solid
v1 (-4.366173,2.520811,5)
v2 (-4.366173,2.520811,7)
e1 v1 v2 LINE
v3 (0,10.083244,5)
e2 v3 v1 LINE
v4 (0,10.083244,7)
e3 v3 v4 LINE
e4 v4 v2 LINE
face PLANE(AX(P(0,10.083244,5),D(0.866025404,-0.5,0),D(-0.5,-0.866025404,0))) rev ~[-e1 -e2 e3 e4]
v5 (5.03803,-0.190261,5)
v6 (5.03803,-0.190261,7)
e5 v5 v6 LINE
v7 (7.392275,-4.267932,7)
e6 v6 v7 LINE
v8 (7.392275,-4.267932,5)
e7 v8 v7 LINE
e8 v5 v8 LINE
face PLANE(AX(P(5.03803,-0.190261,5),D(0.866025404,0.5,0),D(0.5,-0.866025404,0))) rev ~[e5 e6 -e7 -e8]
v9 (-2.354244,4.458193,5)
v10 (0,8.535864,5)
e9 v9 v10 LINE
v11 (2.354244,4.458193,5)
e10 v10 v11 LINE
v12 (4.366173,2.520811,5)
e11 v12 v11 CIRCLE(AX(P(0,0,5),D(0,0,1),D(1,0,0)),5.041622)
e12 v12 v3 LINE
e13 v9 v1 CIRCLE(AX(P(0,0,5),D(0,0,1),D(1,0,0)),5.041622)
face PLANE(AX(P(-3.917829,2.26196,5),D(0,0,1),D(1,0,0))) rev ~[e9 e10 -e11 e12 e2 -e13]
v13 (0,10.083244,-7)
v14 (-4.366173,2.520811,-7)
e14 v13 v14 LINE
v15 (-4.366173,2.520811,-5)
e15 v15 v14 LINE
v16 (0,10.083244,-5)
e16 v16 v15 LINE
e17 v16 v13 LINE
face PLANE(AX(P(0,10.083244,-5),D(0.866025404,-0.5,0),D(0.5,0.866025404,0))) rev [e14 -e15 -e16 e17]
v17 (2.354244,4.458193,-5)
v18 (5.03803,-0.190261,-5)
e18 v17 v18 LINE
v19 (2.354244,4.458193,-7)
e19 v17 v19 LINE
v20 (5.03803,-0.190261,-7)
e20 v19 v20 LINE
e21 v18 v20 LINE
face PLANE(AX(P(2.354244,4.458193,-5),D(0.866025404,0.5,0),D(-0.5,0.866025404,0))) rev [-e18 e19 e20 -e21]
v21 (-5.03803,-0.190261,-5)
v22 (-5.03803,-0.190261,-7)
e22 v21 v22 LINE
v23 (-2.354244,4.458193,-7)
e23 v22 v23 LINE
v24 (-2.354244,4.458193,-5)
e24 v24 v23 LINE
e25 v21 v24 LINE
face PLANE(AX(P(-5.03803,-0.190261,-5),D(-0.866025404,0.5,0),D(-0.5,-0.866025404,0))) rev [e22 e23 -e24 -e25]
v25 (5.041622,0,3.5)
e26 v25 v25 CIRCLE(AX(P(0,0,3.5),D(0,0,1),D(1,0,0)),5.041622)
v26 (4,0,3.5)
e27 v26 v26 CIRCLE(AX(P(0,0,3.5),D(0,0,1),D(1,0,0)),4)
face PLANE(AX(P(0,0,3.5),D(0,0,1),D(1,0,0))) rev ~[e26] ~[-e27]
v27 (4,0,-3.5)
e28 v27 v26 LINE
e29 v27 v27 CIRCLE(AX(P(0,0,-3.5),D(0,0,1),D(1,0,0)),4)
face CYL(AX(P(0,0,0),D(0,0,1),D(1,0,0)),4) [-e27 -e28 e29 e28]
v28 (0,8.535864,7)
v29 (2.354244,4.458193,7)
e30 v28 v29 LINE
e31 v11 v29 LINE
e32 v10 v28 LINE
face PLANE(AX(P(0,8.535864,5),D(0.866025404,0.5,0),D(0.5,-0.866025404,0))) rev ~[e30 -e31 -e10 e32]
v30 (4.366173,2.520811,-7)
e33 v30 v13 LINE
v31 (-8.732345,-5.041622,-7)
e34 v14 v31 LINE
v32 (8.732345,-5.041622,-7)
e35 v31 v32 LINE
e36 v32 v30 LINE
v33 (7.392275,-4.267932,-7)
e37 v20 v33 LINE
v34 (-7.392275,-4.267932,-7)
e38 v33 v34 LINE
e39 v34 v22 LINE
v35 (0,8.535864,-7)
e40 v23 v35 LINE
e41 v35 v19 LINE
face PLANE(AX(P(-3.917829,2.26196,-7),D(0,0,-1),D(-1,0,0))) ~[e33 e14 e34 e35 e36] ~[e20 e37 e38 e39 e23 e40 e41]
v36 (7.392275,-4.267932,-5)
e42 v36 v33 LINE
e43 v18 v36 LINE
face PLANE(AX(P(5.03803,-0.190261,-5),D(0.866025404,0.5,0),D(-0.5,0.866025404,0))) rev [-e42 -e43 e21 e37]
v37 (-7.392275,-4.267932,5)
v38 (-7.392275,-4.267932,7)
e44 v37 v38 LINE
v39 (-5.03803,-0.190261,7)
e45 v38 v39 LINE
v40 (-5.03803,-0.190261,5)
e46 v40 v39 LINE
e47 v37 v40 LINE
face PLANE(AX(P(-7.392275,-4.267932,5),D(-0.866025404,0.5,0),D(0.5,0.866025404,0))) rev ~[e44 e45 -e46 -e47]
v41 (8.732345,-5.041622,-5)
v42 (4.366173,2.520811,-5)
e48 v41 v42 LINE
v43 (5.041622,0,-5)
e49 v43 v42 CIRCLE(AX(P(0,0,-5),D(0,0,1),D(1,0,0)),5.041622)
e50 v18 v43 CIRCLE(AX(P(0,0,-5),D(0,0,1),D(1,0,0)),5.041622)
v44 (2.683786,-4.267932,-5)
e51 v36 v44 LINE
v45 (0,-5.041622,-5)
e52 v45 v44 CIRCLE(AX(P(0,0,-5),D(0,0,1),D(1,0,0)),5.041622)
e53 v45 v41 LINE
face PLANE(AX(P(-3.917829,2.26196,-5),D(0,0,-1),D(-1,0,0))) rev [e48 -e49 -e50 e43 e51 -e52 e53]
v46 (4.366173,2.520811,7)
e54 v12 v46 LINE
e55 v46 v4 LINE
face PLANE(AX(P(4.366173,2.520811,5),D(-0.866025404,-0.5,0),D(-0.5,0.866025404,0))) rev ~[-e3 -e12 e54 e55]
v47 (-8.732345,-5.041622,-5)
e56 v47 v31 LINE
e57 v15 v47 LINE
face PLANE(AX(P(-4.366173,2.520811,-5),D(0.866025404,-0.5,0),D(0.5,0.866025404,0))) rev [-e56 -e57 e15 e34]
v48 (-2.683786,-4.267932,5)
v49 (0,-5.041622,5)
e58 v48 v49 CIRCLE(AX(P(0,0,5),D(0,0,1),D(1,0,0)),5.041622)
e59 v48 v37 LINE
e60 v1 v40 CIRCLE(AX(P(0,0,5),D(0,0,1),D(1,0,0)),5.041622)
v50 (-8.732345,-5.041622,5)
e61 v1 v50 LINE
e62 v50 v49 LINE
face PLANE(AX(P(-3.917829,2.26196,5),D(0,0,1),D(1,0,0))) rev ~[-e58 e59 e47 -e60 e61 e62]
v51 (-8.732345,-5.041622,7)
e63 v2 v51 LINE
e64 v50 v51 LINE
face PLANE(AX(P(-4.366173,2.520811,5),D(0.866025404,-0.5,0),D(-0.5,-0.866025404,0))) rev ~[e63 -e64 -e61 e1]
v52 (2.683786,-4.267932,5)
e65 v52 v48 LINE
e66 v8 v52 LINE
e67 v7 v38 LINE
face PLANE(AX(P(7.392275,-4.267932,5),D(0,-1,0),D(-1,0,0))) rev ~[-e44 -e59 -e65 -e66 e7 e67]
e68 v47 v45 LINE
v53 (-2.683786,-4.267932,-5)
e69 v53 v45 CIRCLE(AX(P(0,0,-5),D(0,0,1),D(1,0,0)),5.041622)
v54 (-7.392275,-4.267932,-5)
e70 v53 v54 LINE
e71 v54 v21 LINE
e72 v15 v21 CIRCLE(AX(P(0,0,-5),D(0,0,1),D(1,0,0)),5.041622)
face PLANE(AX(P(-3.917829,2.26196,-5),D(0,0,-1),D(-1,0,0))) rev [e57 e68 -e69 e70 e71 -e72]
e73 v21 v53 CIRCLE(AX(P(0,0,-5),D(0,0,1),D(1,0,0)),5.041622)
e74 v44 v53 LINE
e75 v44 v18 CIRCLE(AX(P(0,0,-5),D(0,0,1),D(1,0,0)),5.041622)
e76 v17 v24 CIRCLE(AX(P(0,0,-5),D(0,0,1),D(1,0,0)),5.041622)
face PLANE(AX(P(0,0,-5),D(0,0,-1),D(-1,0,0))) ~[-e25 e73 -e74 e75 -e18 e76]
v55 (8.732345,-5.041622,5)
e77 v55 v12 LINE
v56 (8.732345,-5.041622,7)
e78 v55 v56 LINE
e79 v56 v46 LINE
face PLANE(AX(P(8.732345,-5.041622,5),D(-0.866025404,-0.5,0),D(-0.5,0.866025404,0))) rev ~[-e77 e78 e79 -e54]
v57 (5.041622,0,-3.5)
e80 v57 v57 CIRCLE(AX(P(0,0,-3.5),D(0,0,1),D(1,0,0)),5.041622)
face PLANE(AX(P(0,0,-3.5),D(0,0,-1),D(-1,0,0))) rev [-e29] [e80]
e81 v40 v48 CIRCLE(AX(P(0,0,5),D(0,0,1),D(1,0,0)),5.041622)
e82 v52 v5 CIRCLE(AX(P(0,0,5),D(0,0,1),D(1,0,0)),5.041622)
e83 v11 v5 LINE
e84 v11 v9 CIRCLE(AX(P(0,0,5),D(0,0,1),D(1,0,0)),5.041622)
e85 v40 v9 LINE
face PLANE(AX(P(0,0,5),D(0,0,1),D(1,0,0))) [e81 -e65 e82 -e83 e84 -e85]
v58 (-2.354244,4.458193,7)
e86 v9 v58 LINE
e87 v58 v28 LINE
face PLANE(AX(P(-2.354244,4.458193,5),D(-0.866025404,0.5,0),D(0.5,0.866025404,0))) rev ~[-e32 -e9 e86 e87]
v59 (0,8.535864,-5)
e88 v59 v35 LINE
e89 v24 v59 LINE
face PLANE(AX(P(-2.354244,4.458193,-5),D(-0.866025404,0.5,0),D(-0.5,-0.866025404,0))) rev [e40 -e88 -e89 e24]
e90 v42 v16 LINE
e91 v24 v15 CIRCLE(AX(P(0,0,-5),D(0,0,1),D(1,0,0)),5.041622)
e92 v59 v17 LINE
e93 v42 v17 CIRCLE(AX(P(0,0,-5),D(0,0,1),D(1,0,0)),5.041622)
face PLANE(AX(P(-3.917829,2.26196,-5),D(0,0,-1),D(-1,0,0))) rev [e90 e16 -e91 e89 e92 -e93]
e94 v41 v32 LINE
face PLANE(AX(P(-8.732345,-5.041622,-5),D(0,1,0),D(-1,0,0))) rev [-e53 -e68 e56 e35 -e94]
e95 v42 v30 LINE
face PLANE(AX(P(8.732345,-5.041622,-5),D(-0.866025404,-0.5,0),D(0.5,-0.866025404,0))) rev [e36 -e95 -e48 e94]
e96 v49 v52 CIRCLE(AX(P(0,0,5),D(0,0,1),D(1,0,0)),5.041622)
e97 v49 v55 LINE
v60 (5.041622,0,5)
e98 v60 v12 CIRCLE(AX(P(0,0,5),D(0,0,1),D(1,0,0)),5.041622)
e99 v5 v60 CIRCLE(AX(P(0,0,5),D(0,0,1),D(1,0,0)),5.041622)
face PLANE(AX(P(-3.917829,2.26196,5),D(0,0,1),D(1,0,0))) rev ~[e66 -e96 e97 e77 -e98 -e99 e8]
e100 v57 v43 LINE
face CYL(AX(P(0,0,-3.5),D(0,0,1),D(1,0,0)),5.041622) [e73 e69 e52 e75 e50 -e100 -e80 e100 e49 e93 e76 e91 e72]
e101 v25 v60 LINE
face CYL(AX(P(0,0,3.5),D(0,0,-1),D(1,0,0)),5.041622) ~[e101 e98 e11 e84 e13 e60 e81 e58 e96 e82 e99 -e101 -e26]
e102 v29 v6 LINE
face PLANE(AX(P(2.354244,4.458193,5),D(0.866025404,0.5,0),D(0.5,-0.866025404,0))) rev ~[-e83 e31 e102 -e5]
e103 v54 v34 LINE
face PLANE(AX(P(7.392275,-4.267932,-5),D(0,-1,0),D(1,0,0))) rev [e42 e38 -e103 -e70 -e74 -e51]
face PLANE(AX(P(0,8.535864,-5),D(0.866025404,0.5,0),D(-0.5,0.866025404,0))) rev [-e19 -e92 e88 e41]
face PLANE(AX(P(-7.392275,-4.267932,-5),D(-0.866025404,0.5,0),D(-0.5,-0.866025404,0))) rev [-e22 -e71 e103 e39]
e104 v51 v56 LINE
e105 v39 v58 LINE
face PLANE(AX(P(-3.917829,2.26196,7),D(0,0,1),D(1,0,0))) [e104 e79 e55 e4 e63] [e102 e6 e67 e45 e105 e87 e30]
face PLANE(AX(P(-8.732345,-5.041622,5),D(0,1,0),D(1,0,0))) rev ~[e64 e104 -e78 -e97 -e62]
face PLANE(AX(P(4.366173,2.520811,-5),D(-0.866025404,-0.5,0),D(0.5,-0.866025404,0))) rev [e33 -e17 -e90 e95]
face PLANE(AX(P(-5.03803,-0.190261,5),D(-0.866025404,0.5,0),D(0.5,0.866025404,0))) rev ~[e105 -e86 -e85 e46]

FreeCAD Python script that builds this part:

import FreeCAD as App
import Part
import Sketcher

V = App.Vector
Q = App.Units.Quantity

doc = App.newDocument("Part")
body = doc.addObject("PartDesign::Body", "Body")

sketch1 = body.newObject("Sketcher::SketchObject", "Sketch")
sketch1.AttachmentSupport = (doc.getObject("XY_Plane"), [""])
sketch1.MapMode = "FlatFace"
sketch1.addGeometry(Part.Circle(V(0, 0, 0), V(0, 0, 1), 4), False)
sketch1.addConstraint([
    Sketcher.Constraint("Coincident", 0, 3, -1, 1),
    Sketcher.Constraint("Diameter", 0, Q("8 mm")),
])
pad1 = body.newObject("PartDesign::Pad", "Pad")
pad1.Profile = sketch1
pad1.Length = 3.5

sketch2 = body.newObject("Sketcher::SketchObject", "Sketch001")
sketch2.AttachmentSupport = (doc.getObject("XY_Plane"), [""])
sketch2.MapMode = "FlatFace"
sketch2.AttachmentOffset = App.Placement(V(0, 0, 3.5), App.Rotation())
sketch2.addGeometry(Part.Circle(V(0, 0, 0), V(0, 0, 1), 5), False)
sketch2.addConstraint([
    Sketcher.Constraint("Coincident", 0, 3, -1, 1),
    Sketcher.Constraint("Diameter", 0, Q("10.083244 mm")),
])
pad2 = body.newObject("PartDesign::Pad", "Pad001")
pad2.Profile = sketch2
pad2.Length = 1.5

sketch3 = body.newObject("Sketcher::SketchObject", "Sketch002")
sketch3.AttachmentSupport = (doc.getObject("XY_Plane"), [""])
sketch3.MapMode = "FlatFace"
sketch3.AttachmentOffset = App.Placement(V(0, 0, 5), App.Rotation())
sketch3.addGeometry([
    Part.LineSegment(V(4.4, 2.5, 0), V(0, 10.1, 0)),
    Part.LineSegment(V(0, 10.1, 0), V(-4.4, 2.5, 0)),
    Part.LineSegment(V(-4.4, 2.5, 0), V(-8.7, -5, 0)),
    Part.LineSegment(V(-8.7, -5, 0), V(8.7, -5, 0)),
    Part.LineSegment(V(8.7, -5, 0), V(4.4, 2.5, 0)),
    Part.LineSegment(V(-5, -0.2, 0), V(-2.4, 4.5, 0)),
    Part.LineSegment(V(-2.4, 4.5, 0), V(0, 8.5, 0)),
    Part.LineSegment(V(0, 8.5, 0), V(2.4, 4.5, 0)),
    Part.LineSegment(V(2.4, 4.5, 0), V(5, -0.2, 0)),
    Part.LineSegment(V(5, -0.2, 0), V(7.4, -4.3, 0)),
    Part.LineSegment(V(7.4, -4.3, 0), V(-7.4, -4.3, 0)),
    Part.LineSegment(V(-7.4, -4.3, 0), V(-5, -0.2, 0)),
], False)
sketch3.addConstraint([
    Sketcher.Constraint("Coincident", 0, 2, 1, 1),
    Sketcher.Constraint("Coincident", 1, 2, 2, 1),
    Sketcher.Constraint("Coincident", 2, 2, 3, 1),
    Sketcher.Constraint("Coincident", 3, 2, 4, 1),
    Sketcher.Constraint("Coincident", 4, 2, 0, 1),
    Sketcher.Constraint("Coincident", 5, 2, 6, 1),
    Sketcher.Constraint("Coincident", 6, 2, 7, 1),
    Sketcher.Constraint("Coincident", 7, 2, 8, 1),
    Sketcher.Constraint("Coincident", 8, 2, 9, 1),
    Sketcher.Constraint("Coincident", 9, 2, 10, 1),
    Sketcher.Constraint("Coincident", 10, 2, 11, 1),
    Sketcher.Constraint("Coincident", 11, 2, 5, 1),
    Sketcher.Constraint("Horizontal", 3),
    Sketcher.Constraint("Horizontal", 10),
    Sketcher.Constraint("Symmetric", 1, 2, 4, 2, -2),
    Sketcher.Constraint("Symmetric", 5, 2, 7, 2, -2),
    Sketcher.Constraint("Symmetric", 8, 2, 11, 2, -2),
    Sketcher.Constraint("PointOnObject", 0, 2, -2),
    Sketcher.Constraint("PointOnObject", 6, 2, -2),
    Sketcher.Constraint("Parallel", 1, 2),
    Sketcher.Constraint("Parallel", 0, 4),
    Sketcher.Constraint("Parallel", 2, 5),
    Sketcher.Constraint("Parallel", 5, 6),
    Sketcher.Constraint("Parallel", 8, 9),
    Sketcher.Constraint("Parallel", 6, 11),
    Sketcher.Constraint("Equal", 1, 2),
    Sketcher.Constraint("Equal", 7, 9),
    Sketcher.Constraint("Angle", 0, Q("120 deg")),
    Sketcher.Constraint("DistanceX", 3, 1, 3, 2, Q("17.46469 mm")),
    Sketcher.Constraint("DistanceX", 10, 2, 10, 1, Q("14.78455 mm")),
    Sketcher.Constraint("DistanceX", 2, 2, 5, 2, Q("6.378101 mm")),
    Sketcher.Constraint("DistanceY", -1, 1, 1, 2, Q("2.520811 mm")),
    Sketcher.Constraint("DistanceY", 8, 2, -1, 1, Q("0.190261 mm")),
])
pad3 = body.newObject("PartDesign::Pad", "Pad002")
pad3.Profile = sketch3
pad3.Length = 2
body2 = doc.addObject("PartDesign::Body", "Body001")
doc.recompute()

body2.BaseFeature = body
doc.recompute()

mirroring = doc.addObject("Part::Mirroring", "Mirroring")
mirroring.Source = body
mirroring.Base = V(0, 0, 0)
mirroring.Normal = V(0, 0, 1)
body3 = doc.addObject("PartDesign::Body", "Body002")
body3.BaseFeature = mirroring
boolean = body2.newObject("PartDesign::Boolean", "Boolean")
boolean.Type = "Fuse"
boolean.addObjects([body3])
doc.recompute()
mirroring.Visibility = False

doc.recompute()
